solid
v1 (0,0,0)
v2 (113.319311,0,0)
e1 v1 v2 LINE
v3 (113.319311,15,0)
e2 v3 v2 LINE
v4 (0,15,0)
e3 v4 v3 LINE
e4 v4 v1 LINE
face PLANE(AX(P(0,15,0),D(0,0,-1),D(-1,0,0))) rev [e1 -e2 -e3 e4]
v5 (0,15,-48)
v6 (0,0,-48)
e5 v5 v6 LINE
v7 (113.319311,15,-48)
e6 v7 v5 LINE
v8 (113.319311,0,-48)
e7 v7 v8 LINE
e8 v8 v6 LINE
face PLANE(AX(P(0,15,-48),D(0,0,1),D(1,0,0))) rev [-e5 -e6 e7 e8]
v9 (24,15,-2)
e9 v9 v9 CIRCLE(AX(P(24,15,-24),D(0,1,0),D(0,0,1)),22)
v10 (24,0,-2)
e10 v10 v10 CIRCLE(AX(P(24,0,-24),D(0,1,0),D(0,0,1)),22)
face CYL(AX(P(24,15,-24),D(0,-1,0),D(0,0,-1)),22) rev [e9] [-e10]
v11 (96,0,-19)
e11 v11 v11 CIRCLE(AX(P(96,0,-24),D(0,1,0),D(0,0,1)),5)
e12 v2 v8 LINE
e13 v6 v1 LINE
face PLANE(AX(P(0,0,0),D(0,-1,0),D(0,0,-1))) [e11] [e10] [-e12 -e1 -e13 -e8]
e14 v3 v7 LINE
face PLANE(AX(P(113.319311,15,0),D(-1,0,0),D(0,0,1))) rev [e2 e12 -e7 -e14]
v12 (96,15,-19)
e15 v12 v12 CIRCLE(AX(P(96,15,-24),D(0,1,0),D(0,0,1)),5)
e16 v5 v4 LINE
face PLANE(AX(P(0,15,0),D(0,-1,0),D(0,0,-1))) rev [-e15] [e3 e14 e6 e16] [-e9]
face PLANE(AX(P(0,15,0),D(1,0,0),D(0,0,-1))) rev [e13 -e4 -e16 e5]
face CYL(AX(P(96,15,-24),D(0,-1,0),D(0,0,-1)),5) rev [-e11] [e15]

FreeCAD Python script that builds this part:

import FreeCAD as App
import Part
import Sketcher
from FreeCAD import Vector

doc = App.newDocument("Part")
body = doc.addObject("PartDesign::Body", "Body")

# Sketch on XZ plane
sketch1 = body.newObject("Sketcher::SketchObject", "Sketch")
sketch1.AttachmentSupport = (doc.getObject("XZ_Plane"), [""])
sketch1.MapMode = "FlatFace"
sketch1.addGeometry([
    Part.LineSegment(Vector(0, -48, 0), Vector(0, 0, 0)),  # 0
    Part.LineSegment(Vector(0, 0, 0), Vector(113, 0, 0)),  # 1
    Part.LineSegment(Vector(113, 0, 0), Vector(113, -48, 0)),  # 2
    Part.LineSegment(Vector(113, -48, 0), Vector(0, -48, 0)),  # 3
    Part.Circle(Vector(24, -24, 0), Vector(0, 0, 1), 22),  # 4
    Part.Circle(Vector(96, -24, 0), Vector(0, 0, 1), 5),  # 5
], False)
sketch1.addConstraint([
    Sketcher.Constraint("Coincident", 0, 2, 1, 1),
    Sketcher.Constraint("Coincident", 1, 2, 2, 1),
    Sketcher.Constraint("Coincident", 2, 2, 3, 1),
    Sketcher.Constraint("Coincident", 3, 2, 0, 1),
    Sketcher.Constraint("Vertical", 0),
    Sketcher.Constraint("Horizontal", 1),
    Sketcher.Constraint("Vertical", 2),
    Sketcher.Constraint("Horizontal", 3),
    Sketcher.Constraint("Coincident", 0, 2, -1, 1),
    Sketcher.Constraint("Horizontal", 4, 3, 5, 3),
    Sketcher.Constraint("Diameter", 4, 44.0),
    Sketcher.Constraint("Diameter", 5, 10.0),
    Sketcher.Constraint("DistanceY", 0, 1, 0, 2, 48.0),
    Sketcher.Constraint("DistanceX", -1, 1, 4, 3, 24.0),
    Sketcher.Constraint("DistanceY", 4, 3, -1, 1, 24.0),
    Sketcher.Constraint("DistanceX", -1, 1, 5, 3, 96.0),
    Sketcher.Constraint("DistanceX", 1, 1, 1, 2, 113.319311),
])
pad1 = body.newObject("PartDesign::Pad", "Pad")
pad1.Profile = sketch1
pad1.Length = 15
pad1.Reversed = True

doc.recompute()
